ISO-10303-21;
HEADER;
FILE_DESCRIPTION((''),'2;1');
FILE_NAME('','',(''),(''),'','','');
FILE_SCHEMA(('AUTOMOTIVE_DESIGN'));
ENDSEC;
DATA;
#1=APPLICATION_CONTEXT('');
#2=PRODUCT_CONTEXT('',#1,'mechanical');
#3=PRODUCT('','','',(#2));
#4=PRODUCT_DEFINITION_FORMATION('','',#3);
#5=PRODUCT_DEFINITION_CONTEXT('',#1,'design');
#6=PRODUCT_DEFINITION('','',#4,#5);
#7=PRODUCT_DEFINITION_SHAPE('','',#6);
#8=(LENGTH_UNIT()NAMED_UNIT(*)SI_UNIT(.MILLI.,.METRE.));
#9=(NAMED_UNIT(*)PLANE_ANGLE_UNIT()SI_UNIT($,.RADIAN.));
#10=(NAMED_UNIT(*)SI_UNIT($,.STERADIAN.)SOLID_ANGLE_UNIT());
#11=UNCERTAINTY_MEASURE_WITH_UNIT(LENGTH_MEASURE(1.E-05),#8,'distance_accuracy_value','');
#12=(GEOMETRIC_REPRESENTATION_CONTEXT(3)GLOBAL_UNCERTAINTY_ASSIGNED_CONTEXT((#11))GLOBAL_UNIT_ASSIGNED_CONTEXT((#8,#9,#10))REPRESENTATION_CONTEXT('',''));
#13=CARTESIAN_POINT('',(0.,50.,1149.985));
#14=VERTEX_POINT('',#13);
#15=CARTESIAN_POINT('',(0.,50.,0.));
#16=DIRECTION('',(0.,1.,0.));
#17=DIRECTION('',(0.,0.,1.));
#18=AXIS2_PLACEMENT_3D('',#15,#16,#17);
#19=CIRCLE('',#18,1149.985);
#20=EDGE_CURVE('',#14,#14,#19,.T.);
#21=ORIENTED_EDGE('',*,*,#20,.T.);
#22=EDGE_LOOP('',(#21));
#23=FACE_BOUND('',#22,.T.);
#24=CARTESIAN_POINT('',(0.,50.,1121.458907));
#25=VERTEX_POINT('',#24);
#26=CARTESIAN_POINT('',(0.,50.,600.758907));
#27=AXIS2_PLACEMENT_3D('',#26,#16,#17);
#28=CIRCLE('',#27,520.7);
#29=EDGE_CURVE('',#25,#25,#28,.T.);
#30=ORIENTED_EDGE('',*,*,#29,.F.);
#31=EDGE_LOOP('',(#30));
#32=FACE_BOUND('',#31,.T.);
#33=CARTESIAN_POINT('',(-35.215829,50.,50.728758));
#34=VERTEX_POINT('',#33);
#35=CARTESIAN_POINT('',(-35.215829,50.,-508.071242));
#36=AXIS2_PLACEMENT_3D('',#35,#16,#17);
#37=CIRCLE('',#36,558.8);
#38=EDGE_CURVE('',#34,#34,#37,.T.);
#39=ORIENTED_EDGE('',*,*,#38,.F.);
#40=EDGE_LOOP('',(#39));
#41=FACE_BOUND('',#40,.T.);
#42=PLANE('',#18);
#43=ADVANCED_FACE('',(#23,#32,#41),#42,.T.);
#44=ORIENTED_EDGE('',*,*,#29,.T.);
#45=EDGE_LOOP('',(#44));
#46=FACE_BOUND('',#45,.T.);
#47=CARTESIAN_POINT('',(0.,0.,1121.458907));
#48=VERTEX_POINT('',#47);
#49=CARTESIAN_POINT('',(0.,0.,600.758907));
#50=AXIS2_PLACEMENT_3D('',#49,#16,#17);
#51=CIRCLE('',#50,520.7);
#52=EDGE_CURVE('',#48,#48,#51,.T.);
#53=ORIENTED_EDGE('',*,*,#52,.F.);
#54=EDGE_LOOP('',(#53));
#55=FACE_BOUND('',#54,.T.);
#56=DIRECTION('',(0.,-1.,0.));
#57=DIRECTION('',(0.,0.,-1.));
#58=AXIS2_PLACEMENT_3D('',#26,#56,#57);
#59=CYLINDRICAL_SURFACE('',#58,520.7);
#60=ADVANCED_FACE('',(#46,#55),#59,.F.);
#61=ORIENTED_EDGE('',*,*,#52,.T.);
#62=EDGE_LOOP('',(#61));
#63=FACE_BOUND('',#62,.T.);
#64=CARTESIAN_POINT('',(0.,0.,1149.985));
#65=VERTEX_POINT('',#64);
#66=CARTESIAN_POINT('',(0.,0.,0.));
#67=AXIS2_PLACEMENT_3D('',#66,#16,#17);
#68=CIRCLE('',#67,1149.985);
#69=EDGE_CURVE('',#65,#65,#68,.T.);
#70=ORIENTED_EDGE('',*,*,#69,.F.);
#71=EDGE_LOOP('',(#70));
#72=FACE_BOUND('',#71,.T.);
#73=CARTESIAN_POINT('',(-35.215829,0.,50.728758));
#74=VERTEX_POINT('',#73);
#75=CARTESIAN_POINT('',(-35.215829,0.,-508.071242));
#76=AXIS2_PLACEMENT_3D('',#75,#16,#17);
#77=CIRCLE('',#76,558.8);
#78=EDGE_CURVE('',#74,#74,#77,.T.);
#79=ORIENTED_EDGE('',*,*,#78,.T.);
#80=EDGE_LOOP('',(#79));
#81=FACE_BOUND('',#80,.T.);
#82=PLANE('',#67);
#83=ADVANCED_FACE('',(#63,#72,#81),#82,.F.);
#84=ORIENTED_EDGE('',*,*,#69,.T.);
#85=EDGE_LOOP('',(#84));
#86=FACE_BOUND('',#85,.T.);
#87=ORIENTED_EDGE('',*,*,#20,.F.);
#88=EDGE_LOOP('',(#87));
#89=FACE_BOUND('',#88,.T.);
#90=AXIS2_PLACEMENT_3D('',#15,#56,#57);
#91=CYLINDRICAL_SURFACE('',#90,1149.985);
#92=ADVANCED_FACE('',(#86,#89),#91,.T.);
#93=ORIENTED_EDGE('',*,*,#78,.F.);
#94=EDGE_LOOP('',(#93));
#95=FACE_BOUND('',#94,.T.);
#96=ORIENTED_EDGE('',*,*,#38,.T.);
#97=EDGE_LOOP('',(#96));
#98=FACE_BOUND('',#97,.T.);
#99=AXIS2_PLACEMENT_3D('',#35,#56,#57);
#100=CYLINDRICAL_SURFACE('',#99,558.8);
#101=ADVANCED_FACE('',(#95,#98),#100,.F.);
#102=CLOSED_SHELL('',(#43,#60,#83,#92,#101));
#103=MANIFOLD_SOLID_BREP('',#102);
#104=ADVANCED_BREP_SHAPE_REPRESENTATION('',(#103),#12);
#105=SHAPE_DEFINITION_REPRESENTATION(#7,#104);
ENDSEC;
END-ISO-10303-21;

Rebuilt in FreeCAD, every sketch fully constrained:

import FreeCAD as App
import Part
import Sketcher
Q = App.Units.Quantity

doc = App.newDocument("Part")
body = doc.addObject("PartDesign::Body", "Body")

sketch1 = body.newObject("Sketcher::SketchObject", "Sketch")
sketch1.AttachmentSupport = (doc.getObject("XZ_Plane"), [""])
sketch1.MapMode = "FlatFace"
sketch1.addGeometry(Part.Circle(App.Vector(0, 0, 0), App.Vector(0, 0, 1), 1150), False)
sketch1.addGeometry(Part.Circle(App.Vector(0, 601, 0), App.Vector(0, 0, 1), 521), False)
sketch1.addGeometry(Part.Circle(App.Vector(-35, -508, 0), App.Vector(0, 0, 1), 559), False)
sketch1.addConstraint(Sketcher.Constraint("Coincident", 0, 3, -1, 1))
sketch1.addConstraint(Sketcher.Constraint("PointOnObject", 1, 3, -2))
sketch1.addConstraint(Sketcher.Constraint("Diameter", 1, Q("41 in")))
sketch1.addConstraint(Sketcher.Constraint("Diameter", 2, Q("44 in")))
sketch1.addConstraint(Sketcher.Constraint("Diameter", 0, Q("90.55 in")))
sketch1.addConstraint(Sketcher.Constraint("DistanceX", 2, 3, -1, 1, Q("35.215829 mm")))
sketch1.addConstraint(Sketcher.Constraint("DistanceY", 2, 3, 1, 3, Q("1108.83015 mm")))
sketch1.addConstraint(Sketcher.Constraint("DistanceY", -1, 1, 1, 3, Q("600.758907 mm")))
pad1 = body.newObject("PartDesign::Pad", "Pad")
pad1.Profile = sketch1
pad1.Length = 50
pad1.Reversed = True

doc.recompute()
